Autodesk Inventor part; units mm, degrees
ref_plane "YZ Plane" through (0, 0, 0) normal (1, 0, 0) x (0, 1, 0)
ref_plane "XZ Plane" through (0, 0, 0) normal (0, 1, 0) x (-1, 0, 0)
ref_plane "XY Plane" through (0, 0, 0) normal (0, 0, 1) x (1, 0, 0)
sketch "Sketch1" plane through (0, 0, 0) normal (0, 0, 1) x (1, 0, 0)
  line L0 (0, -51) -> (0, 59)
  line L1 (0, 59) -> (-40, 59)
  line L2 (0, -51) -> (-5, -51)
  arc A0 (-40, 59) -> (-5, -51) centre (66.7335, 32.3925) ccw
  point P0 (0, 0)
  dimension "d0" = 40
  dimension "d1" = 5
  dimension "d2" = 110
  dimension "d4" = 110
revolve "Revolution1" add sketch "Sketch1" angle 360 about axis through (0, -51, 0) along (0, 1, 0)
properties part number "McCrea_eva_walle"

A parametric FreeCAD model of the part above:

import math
import FreeCAD as App
import Part
import Sketcher

V = App.Vector

doc = App.newDocument("Part")
body = doc.addObject("PartDesign::Body", "Body")

sketch1 = body.newObject("Sketcher::SketchObject", "Sketch")
sketch1.AttachmentSupport = (doc.getObject("XY_Plane"), [""])
sketch1.MapMode = "FlatFace"
sketch1.addGeometry([
    Part.LineSegment(V(-5, -51, 0), V(0, -51, 0)),
    Part.LineSegment(V(0, -51, 0), V(0, 59, 0)),
    Part.LineSegment(V(0, 59, 0), V(-40, 59, 0)),
    Part.ArcOfCircle(Part.Circle(V(67, 32, 0), V(0, 0, 1), 110), math.radians(166), math.radians(229)),
], False)
sketch1.addConstraint([
    Sketcher.Constraint("Coincident", 0, 2, 1, 1),
    Sketcher.Constraint("Coincident", 1, 2, 2, 1),
    Sketcher.Constraint("Coincident", 2, 2, 3, 1),
    Sketcher.Constraint("Coincident", 3, 2, 0, 1),
    Sketcher.Constraint("Horizontal", 0),
    Sketcher.Constraint("Vertical", 1),
    Sketcher.Constraint("Horizontal", 2),
    Sketcher.Constraint("PointOnObject", 0, 2, -2),
    Sketcher.Constraint("Radius", 3, 110.0),
    Sketcher.Constraint("DistanceX", 0, 1, 0, 2, 5.0),
    Sketcher.Constraint("DistanceX", 2, 2, 2, 1, 40.0),
    Sketcher.Constraint("DistanceY", 1, 1, 1, 2, 110.0),
    Sketcher.Constraint("DistanceY", 0, 2, -1, 1, 51.0),
])
revolution = body.newObject("PartDesign::Revolution", "Revolution")
revolution.Profile = sketch1
revolution.ReferenceAxis = (sketch1, ["V_Axis"])
revolution.Angle = 360

doc.recompute()
